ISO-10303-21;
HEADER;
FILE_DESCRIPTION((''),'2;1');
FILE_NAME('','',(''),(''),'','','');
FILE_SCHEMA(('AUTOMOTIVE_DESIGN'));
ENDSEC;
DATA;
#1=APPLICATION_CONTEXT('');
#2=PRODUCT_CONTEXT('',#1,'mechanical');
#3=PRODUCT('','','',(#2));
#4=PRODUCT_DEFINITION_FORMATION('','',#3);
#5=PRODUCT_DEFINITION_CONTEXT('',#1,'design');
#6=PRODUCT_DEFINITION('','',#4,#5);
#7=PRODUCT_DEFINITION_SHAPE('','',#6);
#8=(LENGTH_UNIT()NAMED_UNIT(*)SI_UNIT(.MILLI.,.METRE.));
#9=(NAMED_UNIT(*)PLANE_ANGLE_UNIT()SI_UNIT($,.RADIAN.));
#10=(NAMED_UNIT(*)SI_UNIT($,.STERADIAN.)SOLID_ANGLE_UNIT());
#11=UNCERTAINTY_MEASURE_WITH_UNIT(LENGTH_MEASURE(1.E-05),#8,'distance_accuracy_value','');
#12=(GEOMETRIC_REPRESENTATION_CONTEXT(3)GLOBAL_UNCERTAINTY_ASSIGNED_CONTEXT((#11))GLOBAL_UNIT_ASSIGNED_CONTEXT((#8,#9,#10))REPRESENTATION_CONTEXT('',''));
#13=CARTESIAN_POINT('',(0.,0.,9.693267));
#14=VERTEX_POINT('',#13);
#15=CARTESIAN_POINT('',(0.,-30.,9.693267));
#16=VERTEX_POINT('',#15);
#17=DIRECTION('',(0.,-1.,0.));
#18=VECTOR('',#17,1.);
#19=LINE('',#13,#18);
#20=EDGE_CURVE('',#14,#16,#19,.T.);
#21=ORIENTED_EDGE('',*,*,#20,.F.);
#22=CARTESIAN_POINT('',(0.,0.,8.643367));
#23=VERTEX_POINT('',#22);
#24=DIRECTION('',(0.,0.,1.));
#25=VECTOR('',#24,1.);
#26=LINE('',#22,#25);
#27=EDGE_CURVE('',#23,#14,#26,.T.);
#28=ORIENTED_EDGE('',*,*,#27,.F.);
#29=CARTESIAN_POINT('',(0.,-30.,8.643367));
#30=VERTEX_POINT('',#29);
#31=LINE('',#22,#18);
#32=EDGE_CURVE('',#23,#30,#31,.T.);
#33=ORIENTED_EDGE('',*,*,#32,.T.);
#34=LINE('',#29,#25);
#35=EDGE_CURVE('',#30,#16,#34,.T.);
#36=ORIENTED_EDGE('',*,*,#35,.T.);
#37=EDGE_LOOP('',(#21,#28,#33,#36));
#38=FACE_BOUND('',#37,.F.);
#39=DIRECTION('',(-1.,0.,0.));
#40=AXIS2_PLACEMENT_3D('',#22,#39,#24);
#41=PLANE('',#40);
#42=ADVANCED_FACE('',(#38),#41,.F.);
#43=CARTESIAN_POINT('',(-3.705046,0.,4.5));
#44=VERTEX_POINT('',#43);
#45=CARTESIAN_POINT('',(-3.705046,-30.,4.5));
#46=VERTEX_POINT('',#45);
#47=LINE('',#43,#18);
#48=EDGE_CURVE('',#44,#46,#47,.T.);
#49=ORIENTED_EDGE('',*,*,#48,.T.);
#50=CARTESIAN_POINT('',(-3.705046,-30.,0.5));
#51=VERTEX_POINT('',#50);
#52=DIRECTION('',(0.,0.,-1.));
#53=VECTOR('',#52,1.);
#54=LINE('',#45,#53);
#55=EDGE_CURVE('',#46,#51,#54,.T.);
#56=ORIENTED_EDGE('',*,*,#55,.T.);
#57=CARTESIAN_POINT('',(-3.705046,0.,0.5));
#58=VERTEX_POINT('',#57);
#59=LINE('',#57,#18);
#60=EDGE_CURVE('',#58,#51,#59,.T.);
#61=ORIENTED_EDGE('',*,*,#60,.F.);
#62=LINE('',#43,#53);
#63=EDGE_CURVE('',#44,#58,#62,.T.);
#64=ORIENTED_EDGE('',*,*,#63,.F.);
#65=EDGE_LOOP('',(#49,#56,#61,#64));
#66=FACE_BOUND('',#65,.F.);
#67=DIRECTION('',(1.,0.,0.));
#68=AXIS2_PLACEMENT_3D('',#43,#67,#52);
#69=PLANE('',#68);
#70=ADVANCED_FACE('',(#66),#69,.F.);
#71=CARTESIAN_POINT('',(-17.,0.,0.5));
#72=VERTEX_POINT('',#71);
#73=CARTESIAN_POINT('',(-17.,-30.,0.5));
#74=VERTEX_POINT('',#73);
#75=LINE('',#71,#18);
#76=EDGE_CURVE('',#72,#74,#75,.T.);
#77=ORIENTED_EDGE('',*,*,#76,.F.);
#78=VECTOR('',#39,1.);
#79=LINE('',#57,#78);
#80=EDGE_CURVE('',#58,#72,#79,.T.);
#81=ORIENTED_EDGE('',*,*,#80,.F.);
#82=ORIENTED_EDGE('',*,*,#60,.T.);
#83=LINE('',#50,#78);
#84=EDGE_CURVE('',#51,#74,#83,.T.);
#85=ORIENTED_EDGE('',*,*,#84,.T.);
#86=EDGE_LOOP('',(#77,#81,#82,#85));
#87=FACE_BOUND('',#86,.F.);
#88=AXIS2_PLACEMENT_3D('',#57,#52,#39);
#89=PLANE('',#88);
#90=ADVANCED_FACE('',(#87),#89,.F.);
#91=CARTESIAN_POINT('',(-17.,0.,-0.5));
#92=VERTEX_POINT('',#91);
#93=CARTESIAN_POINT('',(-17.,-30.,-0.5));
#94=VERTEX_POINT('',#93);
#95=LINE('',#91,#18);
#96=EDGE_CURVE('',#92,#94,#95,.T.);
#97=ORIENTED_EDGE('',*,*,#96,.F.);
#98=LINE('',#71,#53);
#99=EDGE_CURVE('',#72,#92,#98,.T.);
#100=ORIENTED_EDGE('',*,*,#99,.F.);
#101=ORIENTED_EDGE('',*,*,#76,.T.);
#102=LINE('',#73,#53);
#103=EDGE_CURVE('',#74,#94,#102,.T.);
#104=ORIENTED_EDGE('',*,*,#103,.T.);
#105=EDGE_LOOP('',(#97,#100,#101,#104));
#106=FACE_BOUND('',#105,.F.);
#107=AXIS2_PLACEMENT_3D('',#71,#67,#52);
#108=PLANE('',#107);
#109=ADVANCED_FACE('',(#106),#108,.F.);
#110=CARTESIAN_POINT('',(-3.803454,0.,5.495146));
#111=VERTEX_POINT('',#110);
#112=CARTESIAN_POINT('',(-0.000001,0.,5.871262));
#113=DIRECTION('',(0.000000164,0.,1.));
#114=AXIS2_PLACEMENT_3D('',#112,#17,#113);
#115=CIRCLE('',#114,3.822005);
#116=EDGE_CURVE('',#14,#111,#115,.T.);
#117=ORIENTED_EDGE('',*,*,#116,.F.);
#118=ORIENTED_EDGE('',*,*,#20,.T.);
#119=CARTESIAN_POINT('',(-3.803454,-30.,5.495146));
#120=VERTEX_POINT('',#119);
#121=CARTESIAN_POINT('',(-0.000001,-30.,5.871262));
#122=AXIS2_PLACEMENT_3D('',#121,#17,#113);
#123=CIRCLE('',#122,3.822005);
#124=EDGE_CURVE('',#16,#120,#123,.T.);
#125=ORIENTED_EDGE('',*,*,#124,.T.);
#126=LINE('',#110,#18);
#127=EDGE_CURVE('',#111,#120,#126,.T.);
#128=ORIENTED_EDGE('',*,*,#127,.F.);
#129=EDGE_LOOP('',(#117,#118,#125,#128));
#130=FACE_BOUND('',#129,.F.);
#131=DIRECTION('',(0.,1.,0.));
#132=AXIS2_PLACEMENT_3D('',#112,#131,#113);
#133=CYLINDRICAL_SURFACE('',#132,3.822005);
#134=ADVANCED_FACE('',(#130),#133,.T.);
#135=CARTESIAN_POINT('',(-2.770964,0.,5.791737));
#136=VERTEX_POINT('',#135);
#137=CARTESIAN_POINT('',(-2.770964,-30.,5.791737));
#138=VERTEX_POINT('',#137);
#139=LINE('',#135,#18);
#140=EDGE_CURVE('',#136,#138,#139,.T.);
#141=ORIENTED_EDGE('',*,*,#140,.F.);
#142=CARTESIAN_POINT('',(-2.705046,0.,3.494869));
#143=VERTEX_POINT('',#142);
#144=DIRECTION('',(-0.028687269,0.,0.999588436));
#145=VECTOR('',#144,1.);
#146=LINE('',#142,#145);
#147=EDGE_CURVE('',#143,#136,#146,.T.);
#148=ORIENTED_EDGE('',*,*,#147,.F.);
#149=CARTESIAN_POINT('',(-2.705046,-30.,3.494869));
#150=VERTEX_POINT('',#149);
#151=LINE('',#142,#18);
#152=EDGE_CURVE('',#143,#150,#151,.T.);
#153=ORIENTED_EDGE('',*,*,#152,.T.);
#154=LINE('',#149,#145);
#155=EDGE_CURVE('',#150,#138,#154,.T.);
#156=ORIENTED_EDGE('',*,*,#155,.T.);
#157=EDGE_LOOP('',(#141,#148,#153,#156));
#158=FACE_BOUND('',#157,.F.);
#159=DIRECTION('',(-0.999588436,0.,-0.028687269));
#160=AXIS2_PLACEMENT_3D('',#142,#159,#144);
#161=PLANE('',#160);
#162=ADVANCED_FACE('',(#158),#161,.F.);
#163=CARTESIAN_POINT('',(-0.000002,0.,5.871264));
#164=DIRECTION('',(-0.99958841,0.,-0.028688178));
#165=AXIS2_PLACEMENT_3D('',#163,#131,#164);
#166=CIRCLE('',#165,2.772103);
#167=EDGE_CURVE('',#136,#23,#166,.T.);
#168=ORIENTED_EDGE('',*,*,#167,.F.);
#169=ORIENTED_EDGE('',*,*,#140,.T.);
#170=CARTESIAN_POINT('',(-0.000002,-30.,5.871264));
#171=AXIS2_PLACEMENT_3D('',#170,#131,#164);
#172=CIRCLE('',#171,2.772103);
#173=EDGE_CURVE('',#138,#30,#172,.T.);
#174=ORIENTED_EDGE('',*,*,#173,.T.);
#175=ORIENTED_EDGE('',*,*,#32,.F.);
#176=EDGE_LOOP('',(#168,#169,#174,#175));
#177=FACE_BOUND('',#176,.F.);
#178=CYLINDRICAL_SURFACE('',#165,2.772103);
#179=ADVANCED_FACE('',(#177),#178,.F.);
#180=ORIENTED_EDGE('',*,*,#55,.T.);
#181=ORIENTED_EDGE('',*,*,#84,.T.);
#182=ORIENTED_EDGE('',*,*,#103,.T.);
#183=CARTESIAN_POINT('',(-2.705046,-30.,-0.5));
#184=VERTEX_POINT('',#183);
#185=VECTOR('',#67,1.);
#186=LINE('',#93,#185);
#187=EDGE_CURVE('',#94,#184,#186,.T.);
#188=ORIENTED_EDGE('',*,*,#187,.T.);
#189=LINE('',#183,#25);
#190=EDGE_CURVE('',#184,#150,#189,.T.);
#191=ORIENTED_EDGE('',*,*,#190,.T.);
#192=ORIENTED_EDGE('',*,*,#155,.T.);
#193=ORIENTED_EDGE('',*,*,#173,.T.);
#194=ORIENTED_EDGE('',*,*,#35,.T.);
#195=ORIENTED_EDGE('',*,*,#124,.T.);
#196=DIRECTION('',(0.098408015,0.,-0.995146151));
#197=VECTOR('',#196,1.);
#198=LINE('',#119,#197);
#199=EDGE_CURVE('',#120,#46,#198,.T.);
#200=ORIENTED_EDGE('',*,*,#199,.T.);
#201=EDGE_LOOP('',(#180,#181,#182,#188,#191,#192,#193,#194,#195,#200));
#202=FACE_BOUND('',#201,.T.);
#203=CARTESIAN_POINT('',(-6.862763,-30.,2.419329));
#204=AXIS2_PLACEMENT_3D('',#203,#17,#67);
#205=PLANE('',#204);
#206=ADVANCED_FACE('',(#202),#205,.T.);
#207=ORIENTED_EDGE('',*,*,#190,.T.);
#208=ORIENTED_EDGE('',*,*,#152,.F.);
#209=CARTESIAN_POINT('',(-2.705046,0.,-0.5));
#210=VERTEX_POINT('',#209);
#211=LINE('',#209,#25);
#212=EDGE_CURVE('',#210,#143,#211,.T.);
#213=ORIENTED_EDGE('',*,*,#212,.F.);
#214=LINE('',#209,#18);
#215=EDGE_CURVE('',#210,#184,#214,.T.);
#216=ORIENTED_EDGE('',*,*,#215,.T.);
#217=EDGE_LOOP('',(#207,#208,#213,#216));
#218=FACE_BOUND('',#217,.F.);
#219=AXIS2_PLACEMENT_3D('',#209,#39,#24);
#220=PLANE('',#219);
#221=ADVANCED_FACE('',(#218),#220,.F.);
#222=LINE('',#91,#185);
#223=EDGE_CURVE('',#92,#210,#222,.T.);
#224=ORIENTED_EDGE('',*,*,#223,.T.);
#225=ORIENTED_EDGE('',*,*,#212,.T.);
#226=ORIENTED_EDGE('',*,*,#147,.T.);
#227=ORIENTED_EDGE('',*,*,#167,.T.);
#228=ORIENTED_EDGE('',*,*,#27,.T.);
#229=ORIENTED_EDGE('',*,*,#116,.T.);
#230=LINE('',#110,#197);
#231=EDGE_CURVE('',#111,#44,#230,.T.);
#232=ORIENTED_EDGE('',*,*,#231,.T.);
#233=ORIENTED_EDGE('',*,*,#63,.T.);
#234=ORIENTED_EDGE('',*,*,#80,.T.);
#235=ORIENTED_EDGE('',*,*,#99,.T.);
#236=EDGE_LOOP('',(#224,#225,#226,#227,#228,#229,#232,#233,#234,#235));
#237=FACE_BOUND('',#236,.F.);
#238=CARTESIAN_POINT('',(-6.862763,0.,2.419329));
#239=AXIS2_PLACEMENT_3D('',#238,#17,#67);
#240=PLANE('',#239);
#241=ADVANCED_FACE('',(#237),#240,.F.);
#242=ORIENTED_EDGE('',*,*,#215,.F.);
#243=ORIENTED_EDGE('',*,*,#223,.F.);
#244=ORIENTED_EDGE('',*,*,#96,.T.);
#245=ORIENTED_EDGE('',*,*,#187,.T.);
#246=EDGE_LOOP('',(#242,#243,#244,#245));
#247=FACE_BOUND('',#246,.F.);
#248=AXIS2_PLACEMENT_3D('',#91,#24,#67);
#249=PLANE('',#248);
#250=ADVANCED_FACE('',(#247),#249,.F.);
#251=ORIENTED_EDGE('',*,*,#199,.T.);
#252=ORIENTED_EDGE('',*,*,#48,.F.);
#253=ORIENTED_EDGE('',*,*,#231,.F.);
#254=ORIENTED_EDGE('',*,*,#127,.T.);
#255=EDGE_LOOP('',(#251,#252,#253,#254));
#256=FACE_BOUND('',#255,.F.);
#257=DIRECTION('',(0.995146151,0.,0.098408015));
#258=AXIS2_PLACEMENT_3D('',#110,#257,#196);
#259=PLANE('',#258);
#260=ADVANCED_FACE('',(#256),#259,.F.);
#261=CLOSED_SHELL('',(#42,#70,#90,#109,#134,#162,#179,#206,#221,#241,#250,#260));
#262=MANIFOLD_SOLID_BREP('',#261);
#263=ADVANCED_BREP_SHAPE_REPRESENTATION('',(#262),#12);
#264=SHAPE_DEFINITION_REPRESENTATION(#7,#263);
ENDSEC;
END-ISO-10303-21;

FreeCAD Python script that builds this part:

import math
import FreeCAD as App
import Part
import Sketcher
from FreeCAD import Vector

doc = App.newDocument("Part")
params = doc.addObject("Spreadsheet::Sheet", "Params")
for row, (alias, value) in enumerate([
    ("sketch1_height", "1 mm"),
    ("sketch1_height2", "4 mm"),
    ("sketch1_length", "1 mm"),
    ("pad1_length", "30 mm"),
], start=1):
    params.set(f"A{row}", alias)
    params.set(f"B{row}", "=" + value)
    params.setAlias(f"B{row}", alias)

body = doc.addObject("PartDesign::Body", "Body")

# Sketch on XZ plane
sketch1 = body.newObject("Sketcher::SketchObject", "Sketch")
sketch1.AttachmentSupport = (doc.getObject("XZ_Plane"), [""])
sketch1.MapMode = "FlatFace"
sketch1.addGeometry([
    Part.LineSegment(Vector(-17, 0.5, 0), Vector(-17, -0.5, 0)),  # 0
    Part.LineSegment(Vector(-17, -0.5, 0), Vector(-2.705046, -0.5, 0)),  # 1
    Part.LineSegment(Vector(-2.705046, -0.5, 0), Vector(-2.705046, 3.494869, 0)),  # 2
    Part.LineSegment(Vector(-2.705046, 3.494869, 0), Vector(-2.770964, 5.791737, 0)),  # 3
    Part.ArcOfCircle(Part.Circle(Vector(-0.000002, 5.871264, 0), Vector(0, 0, 1), 2.772103), math.radians(89.999968), math.radians(181.643937)),  # 4
    Part.LineSegment(Vector(0, 8.643367, 0), Vector(0, 9.693267, 0)),  # 5
    Part.ArcOfCircle(Part.Circle(Vector(-0.000001, 5.871262, 0), Vector(0, 0, 1), 3.822005), math.radians(89.999991), math.radians(185.647508)),  # 6
    Part.LineSegment(Vector(-3.803454, 5.495146, 0), Vector(-3.705046, 4.5, 0)),  # 7
    Part.LineSegment(Vector(-3.705046, 4.5, 0), Vector(-3.705046, 0.5, 0)),  # 8
    Part.LineSegment(Vector(-3.705046, 0.5, 0), Vector(-17, 0.5, 0)),  # 9
], False)
sketch1.addConstraint([
    Sketcher.Constraint("Coincident", 0, 2, 1, 1),
    Sketcher.Constraint("Coincident", 1, 2, 2, 1),
    Sketcher.Constraint("Coincident", 2, 2, 3, 1),
    Sketcher.Constraint("Tangent", 3, 2, 4, 2),
    Sketcher.Constraint("Coincident", 4, 1, 5, 1),
    Sketcher.Constraint("Coincident", 5, 2, 6, 1),
    Sketcher.Constraint("Tangent", 6, 2, 7, 1),
    Sketcher.Constraint("Coincident", 7, 2, 8, 1),
    Sketcher.Constraint("Coincident", 8, 2, 9, 1),
    Sketcher.Constraint("Coincident", 9, 2, 0, 1),
    Sketcher.Constraint("Vertical", 0),
    Sketcher.Constraint("Horizontal", 1),
    Sketcher.Constraint("Vertical", 2),
    Sketcher.Constraint("Vertical", 5),
    Sketcher.Constraint("Vertical", 8),
    Sketcher.Constraint("Horizontal", 9),
    Sketcher.Constraint("Coincident", 6, 3, 4, 3),
    Sketcher.Constraint("PointOnObject", 4, 3, -2),
    Sketcher.Constraint("PointOnObject", 4, 1, -2),
    Sketcher.Constraint("DistanceY", 0, 2, 0, 1, 1.0),
    Sketcher.Constraint("DistanceY", 8, 2, 8, 1, 4.0),
    Sketcher.Constraint("Distance", 7, 1.0),
    Sketcher.Constraint("DistanceX", 0, 2, -1, 1, 17.0),
    Sketcher.Constraint("DistanceX", 7, 2, 2, 2, 1.0),
    Sketcher.Constraint("DistanceY", 0, 2, -1, 1, 0.5),
    Sketcher.Constraint("DistanceY", 5, 1, 5, 2, 1.0499),
    Sketcher.Constraint("Radius", 4, 2.772103),
    Sketcher.Constraint("DistanceY", 2, 1, 2, 2, 3.994869),
    Sketcher.Constraint("DistanceY", 2, 2, 5, 2, 6.198398),
])
sketch1.setExpression("Constraints[19]", "Params.sketch1_height")
sketch1.setExpression("Constraints[20]", "Params.sketch1_height2")
sketch1.setExpression("Constraints[21]", "Params.sketch1_length")
pad1 = body.newObject("PartDesign::Pad", "Pad")
pad1.Profile = sketch1
pad1.setExpression("Length", "Params.pad1_length")

doc.recompute()
